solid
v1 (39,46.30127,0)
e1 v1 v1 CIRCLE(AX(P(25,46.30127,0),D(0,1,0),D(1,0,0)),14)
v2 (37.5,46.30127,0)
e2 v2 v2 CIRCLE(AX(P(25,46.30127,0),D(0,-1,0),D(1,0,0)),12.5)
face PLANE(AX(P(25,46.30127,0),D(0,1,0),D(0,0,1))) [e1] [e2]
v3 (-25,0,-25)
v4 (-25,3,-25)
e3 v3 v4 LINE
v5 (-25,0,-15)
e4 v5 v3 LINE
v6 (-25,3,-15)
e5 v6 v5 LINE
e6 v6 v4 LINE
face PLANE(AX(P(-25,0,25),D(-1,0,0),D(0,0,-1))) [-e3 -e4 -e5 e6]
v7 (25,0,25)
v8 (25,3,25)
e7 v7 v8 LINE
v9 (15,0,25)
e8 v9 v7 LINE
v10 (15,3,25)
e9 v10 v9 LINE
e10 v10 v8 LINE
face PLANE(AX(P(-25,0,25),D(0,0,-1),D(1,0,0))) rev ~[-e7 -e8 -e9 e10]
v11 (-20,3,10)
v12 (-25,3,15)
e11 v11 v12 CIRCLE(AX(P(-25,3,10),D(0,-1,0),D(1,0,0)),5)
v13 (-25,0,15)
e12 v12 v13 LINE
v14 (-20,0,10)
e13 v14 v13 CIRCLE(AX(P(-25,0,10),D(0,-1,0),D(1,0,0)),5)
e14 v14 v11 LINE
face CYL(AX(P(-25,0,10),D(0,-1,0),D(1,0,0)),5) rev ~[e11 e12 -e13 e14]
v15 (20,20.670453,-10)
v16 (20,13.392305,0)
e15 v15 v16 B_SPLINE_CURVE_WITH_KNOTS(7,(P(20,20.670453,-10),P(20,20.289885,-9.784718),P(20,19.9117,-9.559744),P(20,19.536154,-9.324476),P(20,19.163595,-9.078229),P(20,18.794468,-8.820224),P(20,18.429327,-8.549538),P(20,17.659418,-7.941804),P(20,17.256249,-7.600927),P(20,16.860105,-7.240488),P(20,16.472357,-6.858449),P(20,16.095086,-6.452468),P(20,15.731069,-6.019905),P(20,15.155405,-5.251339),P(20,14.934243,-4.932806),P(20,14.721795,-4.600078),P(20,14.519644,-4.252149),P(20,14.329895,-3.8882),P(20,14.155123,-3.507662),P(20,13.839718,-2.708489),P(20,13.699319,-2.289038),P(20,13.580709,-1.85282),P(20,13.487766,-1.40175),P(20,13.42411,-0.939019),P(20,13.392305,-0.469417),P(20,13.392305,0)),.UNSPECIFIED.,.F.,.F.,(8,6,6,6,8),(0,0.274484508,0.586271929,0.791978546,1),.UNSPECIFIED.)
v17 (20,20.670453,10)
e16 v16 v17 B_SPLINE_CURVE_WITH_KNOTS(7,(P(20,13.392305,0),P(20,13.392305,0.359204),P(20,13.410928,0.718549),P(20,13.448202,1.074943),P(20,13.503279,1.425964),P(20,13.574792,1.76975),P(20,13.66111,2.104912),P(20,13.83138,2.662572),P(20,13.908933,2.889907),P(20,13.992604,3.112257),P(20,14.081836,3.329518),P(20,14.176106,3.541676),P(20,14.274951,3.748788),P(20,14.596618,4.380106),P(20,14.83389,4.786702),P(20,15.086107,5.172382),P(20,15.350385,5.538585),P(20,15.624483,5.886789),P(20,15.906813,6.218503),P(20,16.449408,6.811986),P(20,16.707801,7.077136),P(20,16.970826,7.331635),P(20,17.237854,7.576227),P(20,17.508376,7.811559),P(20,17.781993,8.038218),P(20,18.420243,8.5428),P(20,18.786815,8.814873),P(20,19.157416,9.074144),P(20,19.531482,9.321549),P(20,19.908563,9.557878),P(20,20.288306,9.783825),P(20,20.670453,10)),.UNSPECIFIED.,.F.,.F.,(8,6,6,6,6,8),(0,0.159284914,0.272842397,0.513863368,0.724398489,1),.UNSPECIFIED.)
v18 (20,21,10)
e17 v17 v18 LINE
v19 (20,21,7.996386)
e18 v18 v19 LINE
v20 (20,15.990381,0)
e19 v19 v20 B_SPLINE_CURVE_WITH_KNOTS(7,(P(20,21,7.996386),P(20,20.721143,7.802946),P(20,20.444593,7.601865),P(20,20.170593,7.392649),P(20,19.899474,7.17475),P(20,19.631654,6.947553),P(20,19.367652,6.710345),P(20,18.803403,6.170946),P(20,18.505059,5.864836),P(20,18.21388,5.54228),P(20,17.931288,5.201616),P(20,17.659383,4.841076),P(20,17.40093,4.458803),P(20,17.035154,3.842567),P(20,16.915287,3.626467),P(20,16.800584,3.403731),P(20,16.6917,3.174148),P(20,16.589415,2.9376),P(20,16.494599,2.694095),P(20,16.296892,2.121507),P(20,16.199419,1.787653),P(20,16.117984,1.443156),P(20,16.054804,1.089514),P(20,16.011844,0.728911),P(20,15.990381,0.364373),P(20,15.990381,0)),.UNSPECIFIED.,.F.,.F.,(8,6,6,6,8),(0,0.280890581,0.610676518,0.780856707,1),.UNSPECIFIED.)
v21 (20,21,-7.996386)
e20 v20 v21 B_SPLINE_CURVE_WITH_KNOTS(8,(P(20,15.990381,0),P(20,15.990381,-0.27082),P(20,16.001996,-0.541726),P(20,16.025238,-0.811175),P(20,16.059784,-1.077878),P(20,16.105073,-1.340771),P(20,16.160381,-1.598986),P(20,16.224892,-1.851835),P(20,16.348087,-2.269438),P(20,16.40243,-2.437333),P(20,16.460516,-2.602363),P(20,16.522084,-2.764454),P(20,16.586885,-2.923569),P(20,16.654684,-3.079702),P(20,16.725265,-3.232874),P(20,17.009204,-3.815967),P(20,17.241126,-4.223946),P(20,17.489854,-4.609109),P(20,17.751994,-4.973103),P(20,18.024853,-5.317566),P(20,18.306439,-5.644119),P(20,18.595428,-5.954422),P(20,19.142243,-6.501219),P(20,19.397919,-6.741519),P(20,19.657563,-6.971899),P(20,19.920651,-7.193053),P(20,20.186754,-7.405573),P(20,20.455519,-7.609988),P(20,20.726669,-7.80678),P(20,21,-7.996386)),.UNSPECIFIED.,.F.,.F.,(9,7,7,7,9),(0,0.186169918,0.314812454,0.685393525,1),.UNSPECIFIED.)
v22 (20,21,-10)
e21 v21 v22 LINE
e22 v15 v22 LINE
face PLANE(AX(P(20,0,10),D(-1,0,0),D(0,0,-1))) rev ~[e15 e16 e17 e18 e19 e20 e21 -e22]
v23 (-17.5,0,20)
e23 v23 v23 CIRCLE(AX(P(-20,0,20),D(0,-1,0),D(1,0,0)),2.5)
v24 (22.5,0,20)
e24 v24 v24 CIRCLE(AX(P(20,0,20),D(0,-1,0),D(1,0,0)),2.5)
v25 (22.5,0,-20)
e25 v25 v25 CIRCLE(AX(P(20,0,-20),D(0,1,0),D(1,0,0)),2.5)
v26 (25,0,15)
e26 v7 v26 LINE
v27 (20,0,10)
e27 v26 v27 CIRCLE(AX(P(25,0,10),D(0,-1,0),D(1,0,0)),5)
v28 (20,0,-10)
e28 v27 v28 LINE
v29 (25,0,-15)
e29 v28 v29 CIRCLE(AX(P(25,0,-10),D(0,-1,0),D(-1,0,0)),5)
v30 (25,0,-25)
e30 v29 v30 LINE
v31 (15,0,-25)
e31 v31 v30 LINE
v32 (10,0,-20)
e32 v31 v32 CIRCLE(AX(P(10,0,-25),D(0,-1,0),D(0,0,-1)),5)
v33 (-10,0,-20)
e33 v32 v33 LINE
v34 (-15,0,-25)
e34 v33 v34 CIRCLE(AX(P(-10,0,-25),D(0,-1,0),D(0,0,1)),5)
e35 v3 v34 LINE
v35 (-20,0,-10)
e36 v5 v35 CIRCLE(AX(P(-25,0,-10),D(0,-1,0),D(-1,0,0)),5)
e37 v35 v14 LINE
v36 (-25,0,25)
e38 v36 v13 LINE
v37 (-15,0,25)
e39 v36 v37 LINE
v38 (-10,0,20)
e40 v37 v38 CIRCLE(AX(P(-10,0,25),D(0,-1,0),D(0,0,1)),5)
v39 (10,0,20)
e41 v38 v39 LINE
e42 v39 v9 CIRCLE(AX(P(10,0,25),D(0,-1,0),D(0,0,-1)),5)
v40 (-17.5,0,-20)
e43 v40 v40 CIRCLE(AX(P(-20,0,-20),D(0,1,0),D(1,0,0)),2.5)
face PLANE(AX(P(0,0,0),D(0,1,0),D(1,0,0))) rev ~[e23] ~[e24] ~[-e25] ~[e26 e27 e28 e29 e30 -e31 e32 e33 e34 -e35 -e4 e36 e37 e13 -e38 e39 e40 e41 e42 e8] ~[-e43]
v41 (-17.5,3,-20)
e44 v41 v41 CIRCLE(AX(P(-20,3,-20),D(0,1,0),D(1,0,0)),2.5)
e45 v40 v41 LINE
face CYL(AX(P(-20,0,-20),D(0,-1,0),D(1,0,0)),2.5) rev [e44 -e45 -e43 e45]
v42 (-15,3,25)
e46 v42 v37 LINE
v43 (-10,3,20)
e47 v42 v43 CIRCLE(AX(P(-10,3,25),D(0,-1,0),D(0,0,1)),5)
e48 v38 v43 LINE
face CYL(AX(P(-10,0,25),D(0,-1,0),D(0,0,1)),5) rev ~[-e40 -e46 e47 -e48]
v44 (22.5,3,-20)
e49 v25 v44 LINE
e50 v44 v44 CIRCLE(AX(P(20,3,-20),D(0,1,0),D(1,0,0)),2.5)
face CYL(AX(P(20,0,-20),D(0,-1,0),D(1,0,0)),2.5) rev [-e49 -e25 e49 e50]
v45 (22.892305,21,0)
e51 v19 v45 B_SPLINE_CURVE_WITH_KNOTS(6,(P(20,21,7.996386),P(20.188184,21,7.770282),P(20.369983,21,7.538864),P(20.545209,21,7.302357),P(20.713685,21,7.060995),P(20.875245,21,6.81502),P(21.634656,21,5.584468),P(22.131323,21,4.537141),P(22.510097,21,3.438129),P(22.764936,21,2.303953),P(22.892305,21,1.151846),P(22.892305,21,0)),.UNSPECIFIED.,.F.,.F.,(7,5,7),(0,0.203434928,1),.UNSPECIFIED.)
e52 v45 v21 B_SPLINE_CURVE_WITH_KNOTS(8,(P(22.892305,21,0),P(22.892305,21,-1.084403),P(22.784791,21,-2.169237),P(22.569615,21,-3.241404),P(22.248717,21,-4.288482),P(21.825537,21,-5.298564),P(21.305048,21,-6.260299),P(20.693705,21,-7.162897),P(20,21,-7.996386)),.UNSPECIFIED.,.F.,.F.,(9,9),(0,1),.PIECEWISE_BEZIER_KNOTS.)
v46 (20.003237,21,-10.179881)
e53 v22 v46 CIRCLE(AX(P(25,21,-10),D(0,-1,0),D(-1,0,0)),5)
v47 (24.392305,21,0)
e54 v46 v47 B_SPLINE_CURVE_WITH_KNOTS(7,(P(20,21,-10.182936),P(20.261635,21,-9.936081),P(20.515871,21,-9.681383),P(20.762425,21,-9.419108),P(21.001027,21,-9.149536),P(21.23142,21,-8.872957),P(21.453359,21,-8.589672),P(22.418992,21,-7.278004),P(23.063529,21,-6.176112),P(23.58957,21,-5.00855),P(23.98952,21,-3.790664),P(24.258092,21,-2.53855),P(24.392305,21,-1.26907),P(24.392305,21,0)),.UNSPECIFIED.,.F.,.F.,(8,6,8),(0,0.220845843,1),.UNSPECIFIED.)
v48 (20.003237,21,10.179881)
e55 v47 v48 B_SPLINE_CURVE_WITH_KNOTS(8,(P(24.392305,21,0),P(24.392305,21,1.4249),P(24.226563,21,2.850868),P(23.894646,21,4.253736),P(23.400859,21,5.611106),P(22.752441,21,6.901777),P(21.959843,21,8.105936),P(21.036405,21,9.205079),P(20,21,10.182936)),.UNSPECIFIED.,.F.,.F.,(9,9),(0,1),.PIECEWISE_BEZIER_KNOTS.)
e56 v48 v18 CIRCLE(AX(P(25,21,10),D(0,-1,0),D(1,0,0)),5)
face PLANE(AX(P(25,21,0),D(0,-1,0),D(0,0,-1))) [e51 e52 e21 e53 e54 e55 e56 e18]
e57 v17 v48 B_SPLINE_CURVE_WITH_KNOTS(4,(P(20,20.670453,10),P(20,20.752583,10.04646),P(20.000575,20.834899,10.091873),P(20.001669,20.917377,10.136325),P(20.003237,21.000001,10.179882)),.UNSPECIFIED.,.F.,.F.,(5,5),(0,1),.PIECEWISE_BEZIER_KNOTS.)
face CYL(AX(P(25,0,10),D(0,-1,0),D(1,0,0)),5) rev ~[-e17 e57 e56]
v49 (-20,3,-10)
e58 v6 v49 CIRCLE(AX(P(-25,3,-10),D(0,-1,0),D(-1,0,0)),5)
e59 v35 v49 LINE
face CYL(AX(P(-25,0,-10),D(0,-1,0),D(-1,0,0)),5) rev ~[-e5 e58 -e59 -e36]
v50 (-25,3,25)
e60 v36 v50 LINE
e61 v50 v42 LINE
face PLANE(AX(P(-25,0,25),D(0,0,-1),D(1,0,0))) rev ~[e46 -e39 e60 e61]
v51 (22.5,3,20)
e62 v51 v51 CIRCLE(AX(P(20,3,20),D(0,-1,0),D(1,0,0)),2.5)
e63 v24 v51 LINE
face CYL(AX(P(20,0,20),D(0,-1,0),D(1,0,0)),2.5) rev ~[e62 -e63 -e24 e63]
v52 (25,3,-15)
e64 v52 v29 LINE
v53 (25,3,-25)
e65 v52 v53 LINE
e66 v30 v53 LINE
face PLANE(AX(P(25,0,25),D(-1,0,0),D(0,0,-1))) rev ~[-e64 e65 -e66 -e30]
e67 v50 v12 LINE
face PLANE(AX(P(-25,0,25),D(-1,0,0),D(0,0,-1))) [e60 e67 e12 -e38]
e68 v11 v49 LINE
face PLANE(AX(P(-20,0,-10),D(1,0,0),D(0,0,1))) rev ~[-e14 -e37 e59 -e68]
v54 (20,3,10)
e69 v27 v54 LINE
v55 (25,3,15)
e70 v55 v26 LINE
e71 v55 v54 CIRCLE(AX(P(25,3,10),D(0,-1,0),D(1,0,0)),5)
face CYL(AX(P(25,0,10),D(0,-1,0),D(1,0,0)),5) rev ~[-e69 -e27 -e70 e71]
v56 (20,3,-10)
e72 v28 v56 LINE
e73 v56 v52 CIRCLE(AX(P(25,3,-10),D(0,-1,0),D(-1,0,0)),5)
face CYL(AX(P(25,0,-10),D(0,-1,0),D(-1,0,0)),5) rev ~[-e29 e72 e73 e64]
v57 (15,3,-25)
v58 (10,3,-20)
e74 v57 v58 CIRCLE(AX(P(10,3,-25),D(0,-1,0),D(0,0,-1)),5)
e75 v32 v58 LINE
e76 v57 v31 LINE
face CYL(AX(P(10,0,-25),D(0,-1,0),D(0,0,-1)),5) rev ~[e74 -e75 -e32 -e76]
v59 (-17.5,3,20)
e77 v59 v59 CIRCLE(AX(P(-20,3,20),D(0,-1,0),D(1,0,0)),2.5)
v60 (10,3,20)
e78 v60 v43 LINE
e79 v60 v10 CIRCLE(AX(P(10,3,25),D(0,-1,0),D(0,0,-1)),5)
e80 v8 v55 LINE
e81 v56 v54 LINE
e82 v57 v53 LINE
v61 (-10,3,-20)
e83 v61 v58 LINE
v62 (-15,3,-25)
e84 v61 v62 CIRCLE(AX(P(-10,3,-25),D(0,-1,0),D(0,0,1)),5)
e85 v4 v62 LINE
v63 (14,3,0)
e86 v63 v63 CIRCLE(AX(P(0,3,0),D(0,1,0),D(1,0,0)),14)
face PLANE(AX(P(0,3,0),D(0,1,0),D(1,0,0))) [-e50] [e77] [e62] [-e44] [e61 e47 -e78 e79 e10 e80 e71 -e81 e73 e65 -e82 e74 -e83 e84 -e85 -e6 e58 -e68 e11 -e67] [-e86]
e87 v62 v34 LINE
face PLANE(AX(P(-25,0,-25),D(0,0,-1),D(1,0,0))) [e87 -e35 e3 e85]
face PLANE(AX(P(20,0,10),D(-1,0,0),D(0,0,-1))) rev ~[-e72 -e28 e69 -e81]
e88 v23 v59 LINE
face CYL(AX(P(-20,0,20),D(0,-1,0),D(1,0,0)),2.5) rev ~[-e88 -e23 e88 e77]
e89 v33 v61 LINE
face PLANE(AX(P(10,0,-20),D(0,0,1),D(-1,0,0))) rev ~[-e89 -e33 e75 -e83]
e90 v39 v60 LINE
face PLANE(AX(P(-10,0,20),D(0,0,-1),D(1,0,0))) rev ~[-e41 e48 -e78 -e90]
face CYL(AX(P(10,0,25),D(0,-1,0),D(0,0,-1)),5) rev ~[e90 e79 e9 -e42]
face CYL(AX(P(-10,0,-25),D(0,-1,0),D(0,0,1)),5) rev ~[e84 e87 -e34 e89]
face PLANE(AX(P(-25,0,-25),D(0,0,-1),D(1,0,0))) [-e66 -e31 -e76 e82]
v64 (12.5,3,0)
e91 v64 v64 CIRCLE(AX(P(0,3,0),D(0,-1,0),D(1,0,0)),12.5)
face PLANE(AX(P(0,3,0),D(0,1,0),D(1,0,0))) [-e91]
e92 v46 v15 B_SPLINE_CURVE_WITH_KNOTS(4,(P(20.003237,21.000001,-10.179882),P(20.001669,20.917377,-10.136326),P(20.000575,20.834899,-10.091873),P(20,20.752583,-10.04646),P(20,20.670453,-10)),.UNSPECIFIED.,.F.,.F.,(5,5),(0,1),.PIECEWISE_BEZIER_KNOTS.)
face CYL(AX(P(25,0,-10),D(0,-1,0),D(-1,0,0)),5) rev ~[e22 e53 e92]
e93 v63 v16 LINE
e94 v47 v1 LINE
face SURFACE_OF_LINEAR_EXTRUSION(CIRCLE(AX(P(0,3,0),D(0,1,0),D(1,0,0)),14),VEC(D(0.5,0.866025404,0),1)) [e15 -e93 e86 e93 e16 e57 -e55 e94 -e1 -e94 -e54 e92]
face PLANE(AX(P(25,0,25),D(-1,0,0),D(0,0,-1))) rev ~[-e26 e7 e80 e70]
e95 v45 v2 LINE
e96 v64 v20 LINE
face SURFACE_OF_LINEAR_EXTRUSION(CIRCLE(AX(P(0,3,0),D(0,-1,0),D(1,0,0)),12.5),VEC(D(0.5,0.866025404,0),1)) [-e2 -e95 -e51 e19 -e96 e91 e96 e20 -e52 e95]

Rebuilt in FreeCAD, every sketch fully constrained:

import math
import FreeCAD as App
import Part
import Sketcher

V = App.Vector

doc = App.newDocument("Part")
body = doc.addObject("PartDesign::Body", "Body")

sketch1 = body.newObject("Sketcher::SketchObject", "Sketch")
sketch1.AttachmentSupport = (doc.getObject("XZ_Plane"), [""])
sketch1.MapMode = "FlatFace"
sketch1.addGeometry([
    Part.LineSegment(V(-25, -25, 0), V(-25, 25, 0)),
    Part.LineSegment(V(-25, 25, 0), V(25, 25, 0)),
    Part.LineSegment(V(25, 25, 0), V(25, -25, 0)),
    Part.LineSegment(V(25, -25, 0), V(-25, -25, 0)),
], False)
sketch1.addConstraint([
    Sketcher.Constraint("Coincident", 0, 2, 1, 1),
    Sketcher.Constraint("Coincident", 1, 2, 2, 1),
    Sketcher.Constraint("Coincident", 2, 2, 3, 1),
    Sketcher.Constraint("Coincident", 3, 2, 0, 1),
    Sketcher.Constraint("Vertical", 0),
    Sketcher.Constraint("Horizontal", 1),
    Sketcher.Constraint("Vertical", 2),
    Sketcher.Constraint("Horizontal", 3),
    Sketcher.Constraint("Symmetric", 0, 2, 2, 2, -1, 1),
    Sketcher.Constraint("Equal", 3, 0),
    Sketcher.Constraint("DistanceX", 1, 1, 1, 2, 50.0),
])
pad1 = body.newObject("PartDesign::Pad", "Pad")
pad1.Profile = sketch1
pad1.Length = 3
pad1.Reversed = True

sketch2 = body.newObject("Sketcher::SketchObject", "Sketch001")
sketch2.AttachmentSupport = (doc.getObject("XZ_Plane"), [""])
sketch2.MapMode = "FlatFace"
sketch2.AttachmentOffset = App.Placement(V(0, 0, -3), App.Rotation())
sketch2.addGeometry([
    Part.Circle(V(0, 0, 0), V(0, 0, 1), 14),
    Part.Circle(V(0, 0, 0), V(0, 0, 1), 12),
], False)
sketch2.addConstraint([
    Sketcher.Constraint("Coincident", 0, 3, -1, 1),
    Sketcher.Constraint("Coincident", 1, 3, -1, 1),
    Sketcher.Constraint("Diameter", 0, 28.0),
    Sketcher.Constraint("Diameter", 1, 25.0),
])

sketch3 = body.newObject("Sketcher::SketchObject", "Sketch002")
sketch3.Placement = App.Placement(V(-1.299038, 0.75, 0), App.Rotation(V(0.5, 0.866025404, 0), V(0, 0, 1), V(0.866025404, -0.5, 0), "ZXY"))
sketch3.addGeometry(Part.LineSegment(V(3, 0, 0), V(53, 0, 0)), False)
sketch3.addConstraint([
    Sketcher.Constraint("Horizontal", 0),
    Sketcher.Constraint("PointOnObject", 0, 1, -1),
    Sketcher.Constraint("DistanceX", 0, 1, 0, 2, 50.0),
    Sketcher.Constraint("DistanceX", -1, 1, 0, 1, 2.598076),
])
doc.recompute()

additivepipe = body.newObject("PartDesign::AdditivePipe", "AdditivePipe")
additivepipe.Profile = sketch2
additivepipe.Spine = (sketch3, ["Edge1"])

sketch4 = body.newObject("Sketcher::SketchObject", "Sketch003")
sketch4.AttachmentSupport = (doc.getObject("XZ_Plane"), [""])
sketch4.MapMode = "FlatFace"
sketch4.addGeometry(Part.Circle(V(-20, -20, 0), V(0, 0, 1), 2.5), False)
sketch4.addConstraint([
    Sketcher.Constraint("Diameter", 0, 5.0),
    Sketcher.Constraint("DistanceX", 0, 3, -1, 1, 20.0),
    Sketcher.Constraint("DistanceY", 0, 3, -1, 1, 20.0),
])
pocket1 = body.newObject("PartDesign::Pocket", "Pocket")
pocket1.Profile = sketch4
pocket1.Length = 3

sketch5 = body.newObject("Sketcher::SketchObject", "Sketch004")
sketch5.AttachmentSupport = (doc.getObject("XZ_Plane"), [""])
sketch5.MapMode = "FlatFace"
sketch5.addGeometry(Part.Circle(V(20, -20, 0), V(0, 0, 1), 2.5), False)
sketch5.addConstraint([
    Sketcher.Constraint("Diameter", 0, 5.0),
    Sketcher.Constraint("DistanceX", -1, 1, 0, 3, 20.0),
    Sketcher.Constraint("DistanceY", 0, 3, -1, 1, 20.0),
])
pocket2 = body.newObject("PartDesign::Pocket", "Pocket001")
pocket2.Profile = sketch5
pocket2.Length = 3
doc.recompute()

mirrored = body.newObject("PartDesign::Mirrored", "Mirrored")
mirrored.Originals = [pocket2]
mirrored.MirrorPlane = (doc.getObject("XY_Plane"), [""])
body.Tip = mirrored
doc.recompute()

mirrored2 = body.newObject("PartDesign::Mirrored", "Mirrored001")
mirrored2.Originals = [pocket1]
mirrored2.MirrorPlane = (doc.getObject("XY_Plane"), [""])
body.Tip = mirrored2

sketch6 = body.newObject("Sketcher::SketchObject", "Sketch005")
sketch6.AttachmentSupport = (doc.getObject("XZ_Plane"), [""])
sketch6.MapMode = "FlatFace"
sketch6.addGeometry([
    Part.LineSegment(V(10, -30, 0), V(-10, -30, 0)),
    Part.ArcOfCircle(Part.Circle(V(-10, -25, 0), V(0, 0, 1), 5), math.radians(90), math.radians(270)),
    Part.LineSegment(V(-10, -20, 0), V(10, -20, 0)),
    Part.ArcOfCircle(Part.Circle(V(10, -25, 0), V(0, 0, 1), 5), math.radians(-90), math.radians(90)),
], False)
sketch6.addConstraint([
    Sketcher.Constraint("Tangent", 0, 2, 1, 2),
    Sketcher.Constraint("Tangent", 1, 1, 2, 1),
    Sketcher.Constraint("Tangent", 2, 2, 3, 2),
    Sketcher.Constraint("Tangent", 3, 1, 0, 1),
    Sketcher.Constraint("Horizontal", 0),
    Sketcher.Constraint("Horizontal", 2),
    Sketcher.Constraint("Radius", 1, 5.0),
    Sketcher.Constraint("DistanceX", 0, 2, 0, 1, 20.0),
    Sketcher.Constraint("DistanceX", 1, 3, -1, 1, 10.0),
    Sketcher.Constraint("DistanceY", 1, 3, -1, 1, 25.0),
])
pocket3 = body.newObject("PartDesign::Pocket", "Pocket002")
pocket3.Profile = sketch6
pocket3.Length = 21
doc.recompute()

polarpattern = body.newObject("PartDesign::PolarPattern", "PolarPattern")
polarpattern.Originals = [pocket3]
polarpattern.Axis = (doc.getObject("Y_Axis"), [""])
polarpattern.Angle = 360
polarpattern.Occurrences = 4
body.Tip = polarpattern

doc.recompute()
